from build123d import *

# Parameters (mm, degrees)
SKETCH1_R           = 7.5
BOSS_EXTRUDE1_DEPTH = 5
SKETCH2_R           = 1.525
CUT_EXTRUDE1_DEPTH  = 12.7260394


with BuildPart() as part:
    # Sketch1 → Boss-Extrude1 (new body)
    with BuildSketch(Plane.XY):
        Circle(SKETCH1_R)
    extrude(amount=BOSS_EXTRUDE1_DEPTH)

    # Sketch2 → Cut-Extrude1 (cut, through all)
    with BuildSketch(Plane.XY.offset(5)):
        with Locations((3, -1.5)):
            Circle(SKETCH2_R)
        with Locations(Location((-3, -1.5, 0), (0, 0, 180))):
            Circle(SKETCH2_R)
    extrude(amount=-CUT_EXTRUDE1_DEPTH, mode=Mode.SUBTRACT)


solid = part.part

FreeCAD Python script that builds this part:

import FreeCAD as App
import Part
import Sketcher

doc = App.newDocument("Part")
body = doc.addObject("PartDesign::Body", "Body")

sketch1 = body.newObject("Sketcher::SketchObject", "Sketch")
sketch1.AttachmentSupport = (doc.getObject("XY_Plane"), [""])
sketch1.MapMode = "FlatFace"
sketch1.addGeometry(Part.Circle(App.Vector(0, 0, 0), App.Vector(0, 0, 1), 7.5), False)
sketch1.addConstraint([
    Sketcher.Constraint("Coincident", 0, 3, -1, 1),
    Sketcher.Constraint("Diameter", 0, 15.0),
])
pad1 = body.newObject("PartDesign::Pad", "Pad")
pad1.Profile = sketch1
pad1.Length = 5

sketch2 = body.newObject("Sketcher::SketchObject", "Sketch001")
sketch2.AttachmentSupport = (doc.getObject("XY_Plane"), [""])
sketch2.MapMode = "FlatFace"
sketch2.AttachmentOffset = App.Placement(App.Vector(0, 0, 5), App.Rotation())
sketch2.addGeometry([
    Part.Circle(App.Vector(3, -1.5, 0), App.Vector(0, 0, 1), 1.525),
    Part.Circle(App.Vector(-3, -1.5, 0), App.Vector(0, 0, 1), 1.525),
], False)
sketch2.addConstraint([
    Sketcher.Constraint("Equal", 0, 1),
    Sketcher.Constraint("Symmetric", 0, 3, 1, 3, -2),
    Sketcher.Constraint("Diameter", 0, 3.05),
    Sketcher.Constraint("DistanceX", -1, 1, 0, 3, 3.0),
    Sketcher.Constraint("DistanceY", 0, 3, -1, 1, 1.5),
])
pocket1 = body.newObject("PartDesign::Pocket", "Pocket")
pocket1.Profile = sketch2
pocket1.Type = "ThroughAll"

doc.recompute()
